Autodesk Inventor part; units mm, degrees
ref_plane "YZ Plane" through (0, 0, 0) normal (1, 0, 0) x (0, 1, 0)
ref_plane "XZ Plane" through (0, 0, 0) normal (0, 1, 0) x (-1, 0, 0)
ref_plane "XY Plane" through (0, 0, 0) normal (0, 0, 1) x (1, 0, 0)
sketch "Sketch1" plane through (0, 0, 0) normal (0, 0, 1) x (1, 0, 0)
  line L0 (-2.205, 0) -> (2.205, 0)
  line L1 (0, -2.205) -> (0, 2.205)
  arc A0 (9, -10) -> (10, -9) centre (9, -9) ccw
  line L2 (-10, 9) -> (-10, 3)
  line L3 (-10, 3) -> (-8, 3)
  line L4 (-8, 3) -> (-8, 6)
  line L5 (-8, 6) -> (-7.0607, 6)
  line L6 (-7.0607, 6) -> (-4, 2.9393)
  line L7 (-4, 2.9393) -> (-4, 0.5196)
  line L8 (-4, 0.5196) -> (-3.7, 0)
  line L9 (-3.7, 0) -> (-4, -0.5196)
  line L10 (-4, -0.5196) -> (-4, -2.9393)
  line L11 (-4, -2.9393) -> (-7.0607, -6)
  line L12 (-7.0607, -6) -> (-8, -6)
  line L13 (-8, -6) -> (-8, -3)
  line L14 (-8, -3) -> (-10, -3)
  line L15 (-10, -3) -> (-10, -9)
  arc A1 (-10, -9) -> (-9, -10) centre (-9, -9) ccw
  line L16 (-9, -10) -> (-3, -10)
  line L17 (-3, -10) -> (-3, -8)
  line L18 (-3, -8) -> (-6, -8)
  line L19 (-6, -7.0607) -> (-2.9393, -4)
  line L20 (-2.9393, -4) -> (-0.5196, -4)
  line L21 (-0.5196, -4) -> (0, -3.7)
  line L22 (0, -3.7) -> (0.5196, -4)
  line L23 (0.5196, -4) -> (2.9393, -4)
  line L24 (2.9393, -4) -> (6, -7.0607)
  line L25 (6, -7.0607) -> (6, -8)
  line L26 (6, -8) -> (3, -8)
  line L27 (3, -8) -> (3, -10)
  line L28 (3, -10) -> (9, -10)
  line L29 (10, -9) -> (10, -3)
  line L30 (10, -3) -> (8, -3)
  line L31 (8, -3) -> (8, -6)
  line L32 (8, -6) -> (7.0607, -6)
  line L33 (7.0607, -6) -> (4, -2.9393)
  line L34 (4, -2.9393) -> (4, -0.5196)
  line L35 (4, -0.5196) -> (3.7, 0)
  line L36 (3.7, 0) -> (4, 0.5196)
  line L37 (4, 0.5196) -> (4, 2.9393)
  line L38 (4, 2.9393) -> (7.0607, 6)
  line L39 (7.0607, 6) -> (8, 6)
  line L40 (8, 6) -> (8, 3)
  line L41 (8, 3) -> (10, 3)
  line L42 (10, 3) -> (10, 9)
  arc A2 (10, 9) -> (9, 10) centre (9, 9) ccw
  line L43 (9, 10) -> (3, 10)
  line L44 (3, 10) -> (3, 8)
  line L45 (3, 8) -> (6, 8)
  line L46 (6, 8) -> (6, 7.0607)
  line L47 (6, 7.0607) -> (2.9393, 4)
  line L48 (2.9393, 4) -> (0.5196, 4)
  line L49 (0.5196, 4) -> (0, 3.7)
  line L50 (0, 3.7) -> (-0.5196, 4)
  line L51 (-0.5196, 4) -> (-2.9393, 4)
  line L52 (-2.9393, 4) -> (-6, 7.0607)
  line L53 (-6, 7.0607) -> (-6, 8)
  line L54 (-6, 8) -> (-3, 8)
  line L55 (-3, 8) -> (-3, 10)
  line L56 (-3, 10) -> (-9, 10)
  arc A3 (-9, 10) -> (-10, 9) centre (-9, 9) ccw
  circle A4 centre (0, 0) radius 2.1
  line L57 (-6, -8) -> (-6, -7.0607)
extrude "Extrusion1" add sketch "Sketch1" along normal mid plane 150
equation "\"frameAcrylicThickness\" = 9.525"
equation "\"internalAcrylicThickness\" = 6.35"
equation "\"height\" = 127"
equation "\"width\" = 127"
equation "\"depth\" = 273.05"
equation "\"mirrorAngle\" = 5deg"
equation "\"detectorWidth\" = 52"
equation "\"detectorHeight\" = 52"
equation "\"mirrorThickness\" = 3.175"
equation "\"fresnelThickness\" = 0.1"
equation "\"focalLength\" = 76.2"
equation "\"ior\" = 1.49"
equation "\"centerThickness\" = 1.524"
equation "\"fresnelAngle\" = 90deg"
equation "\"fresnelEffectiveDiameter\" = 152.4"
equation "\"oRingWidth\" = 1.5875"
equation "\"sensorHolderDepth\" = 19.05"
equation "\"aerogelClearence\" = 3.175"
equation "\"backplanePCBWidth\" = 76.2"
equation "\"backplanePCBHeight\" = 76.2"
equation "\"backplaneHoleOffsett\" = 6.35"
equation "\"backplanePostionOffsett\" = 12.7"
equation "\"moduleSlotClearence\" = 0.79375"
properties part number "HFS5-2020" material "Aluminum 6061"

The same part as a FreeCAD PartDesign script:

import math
import FreeCAD as App
import Part
import Sketcher
from FreeCAD import Vector
Q = App.Units.Quantity

doc = App.newDocument("Part")
body = doc.addObject("PartDesign::Body", "Body")

sketch1 = body.newObject("Sketcher::SketchObject", "Sketch")
sketch1.AttachmentSupport = (doc.getObject("XY_Plane"), [""])
sketch1.MapMode = "FlatFace"
sketch1.addGeometry(Part.LineSegment(Vector(3, -10, 0), Vector(9, -10, 0)), False)
sketch1.addGeometry(Part.ArcOfCircle(Part.Circle(Vector(9, -9, 0), Vector(0, 0, 1), 1), math.radians(-90), math.radians(0)), False)
sketch1.addGeometry(Part.LineSegment(Vector(10, -9, 0), Vector(10, -3, 0)), False)
sketch1.addGeometry(Part.LineSegment(Vector(10, -3, 0), Vector(8, -3, 0)), False)
sketch1.addGeometry(Part.LineSegment(Vector(8, -3, 0), Vector(8, -6, 0)), False)
sketch1.addGeometry(Part.LineSegment(Vector(8, -6, 0), Vector(7.1, -6, 0)), False)
sketch1.addGeometry(Part.LineSegment(Vector(7.1, -6, 0), Vector(4, -2.9, 0)), False)
sketch1.addGeometry(Part.LineSegment(Vector(4, -2.9, 0), Vector(4, -0.5, 0)), False)
sketch1.addGeometry(Part.LineSegment(Vector(4, -0.5, 0), Vector(3.7, 0, 0)), False)
sketch1.addGeometry(Part.LineSegment(Vector(3.7, 0, 0), Vector(4, 0.5, 0)), False)
sketch1.addGeometry(Part.LineSegment(Vector(4, 0.5, 0), Vector(4, 2.9, 0)), False)
sketch1.addGeometry(Part.LineSegment(Vector(4, 2.9, 0), Vector(7.1, 6, 0)), False)
sketch1.addGeometry(Part.LineSegment(Vector(7.1, 6, 0), Vector(8, 6, 0)), False)
sketch1.addGeometry(Part.LineSegment(Vector(8, 6, 0), Vector(8, 3, 0)), False)
sketch1.addGeometry(Part.LineSegment(Vector(8, 3, 0), Vector(10, 3, 0)), False)
sketch1.addGeometry(Part.LineSegment(Vector(10, 3, 0), Vector(10, 9, 0)), False)
sketch1.addGeometry(Part.ArcOfCircle(Part.Circle(Vector(9, 9, 0), Vector(0, 0, 1), 1), math.radians(0), math.radians(90)), False)
sketch1.addGeometry(Part.LineSegment(Vector(9, 10, 0), Vector(3, 10, 0)), False)
sketch1.addGeometry(Part.LineSegment(Vector(3, 10, 0), Vector(3, 8, 0)), False)
sketch1.addGeometry(Part.LineSegment(Vector(3, 8, 0), Vector(6, 8, 0)), False)
sketch1.addGeometry(Part.LineSegment(Vector(6, 8, 0), Vector(6, 7.1, 0)), False)
sketch1.addGeometry(Part.LineSegment(Vector(6, 7.1, 0), Vector(2.9, 4, 0)), False)
sketch1.addGeometry(Part.LineSegment(Vector(2.9, 4, 0), Vector(0.5, 4, 0)), False)
sketch1.addGeometry(Part.LineSegment(Vector(0.5, 4, 0), Vector(0, 3.7, 0)), False)
sketch1.addGeometry(Part.LineSegment(Vector(0, 3.7, 0), Vector(-0.5, 4, 0)), False)
sketch1.addGeometry(Part.LineSegment(Vector(-0.5, 4, 0), Vector(-2.9, 4, 0)), False)
sketch1.addGeometry(Part.LineSegment(Vector(-2.9, 4, 0), Vector(-6, 7.1, 0)), False)
sketch1.addGeometry(Part.LineSegment(Vector(-6, 7.1, 0), Vector(-6, 8, 0)), False)
sketch1.addGeometry(Part.LineSegment(Vector(-6, 8, 0), Vector(-3, 8, 0)), False)
sketch1.addGeometry(Part.LineSegment(Vector(-3, 8, 0), Vector(-3, 10, 0)), False)
sketch1.addGeometry(Part.LineSegment(Vector(-3, 10, 0), Vector(-9, 10, 0)), False)
sketch1.addGeometry(Part.ArcOfCircle(Part.Circle(Vector(-9, 9, 0), Vector(0, 0, 1), 1), math.radians(90), math.radians(180)), False)
sketch1.addGeometry(Part.LineSegment(Vector(-10, 9, 0), Vector(-10, 3, 0)), False)
sketch1.addGeometry(Part.LineSegment(Vector(-10, 3, 0), Vector(-8, 3, 0)), False)
sketch1.addGeometry(Part.LineSegment(Vector(-8, 3, 0), Vector(-8, 6, 0)), False)
sketch1.addGeometry(Part.LineSegment(Vector(-8, 6, 0), Vector(-7.1, 6, 0)), False)
sketch1.addGeometry(Part.LineSegment(Vector(-7.1, 6, 0), Vector(-4, 2.9, 0)), False)
sketch1.addGeometry(Part.LineSegment(Vector(-4, 2.9, 0), Vector(-4, 0.5, 0)), False)
sketch1.addGeometry(Part.LineSegment(Vector(-4, 0.5, 0), Vector(-3.7, 0, 0)), False)
sketch1.addGeometry(Part.LineSegment(Vector(-3.7, 0, 0), Vector(-4, -0.5, 0)), False)
sketch1.addGeometry(Part.LineSegment(Vector(-4, -0.5, 0), Vector(-4, -2.9, 0)), False)
sketch1.addGeometry(Part.LineSegment(Vector(-4, -2.9, 0), Vector(-7.1, -6, 0)), False)
sketch1.addGeometry(Part.LineSegment(Vector(-7.1, -6, 0), Vector(-8, -6, 0)), False)
sketch1.addGeometry(Part.LineSegment(Vector(-8, -6, 0), Vector(-8, -3, 0)), False)
sketch1.addGeometry(Part.LineSegment(Vector(-8, -3, 0), Vector(-10, -3, 0)), False)
sketch1.addGeometry(Part.LineSegment(Vector(-10, -3, 0), Vector(-10, -9, 0)), False)
sketch1.addGeometry(Part.ArcOfCircle(Part.Circle(Vector(-9, -9, 0), Vector(0, 0, 1), 1), math.radians(180), math.radians(270)), False)
sketch1.addGeometry(Part.LineSegment(Vector(-9, -10, 0), Vector(-3, -10, 0)), False)
sketch1.addGeometry(Part.LineSegment(Vector(-3, -10, 0), Vector(-3, -8, 0)), False)
sketch1.addGeometry(Part.LineSegment(Vector(-3, -8, 0), Vector(-6, -8, 0)), False)
sketch1.addGeometry(Part.LineSegment(Vector(-6, -8, 0), Vector(-6, -7.1, 0)), False)
sketch1.addGeometry(Part.LineSegment(Vector(-6, -7.1, 0), Vector(-2.9, -4, 0)), False)
sketch1.addGeometry(Part.LineSegment(Vector(-2.9, -4, 0), Vector(-0.5, -4, 0)), False)
sketch1.addGeometry(Part.LineSegment(Vector(-0.5, -4, 0), Vector(0, -3.7, 0)), False)
sketch1.addGeometry(Part.LineSegment(Vector(0, -3.7, 0), Vector(0.5, -4, 0)), False)
sketch1.addGeometry(Part.LineSegment(Vector(0.5, -4, 0), Vector(2.9, -4, 0)), False)
sketch1.addGeometry(Part.LineSegment(Vector(2.9, -4, 0), Vector(6, -7.1, 0)), False)
sketch1.addGeometry(Part.LineSegment(Vector(6, -7.1, 0), Vector(6, -8, 0)), False)
sketch1.addGeometry(Part.LineSegment(Vector(6, -8, 0), Vector(3, -8, 0)), False)
sketch1.addGeometry(Part.LineSegment(Vector(3, -8, 0), Vector(3, -10, 0)), False)
sketch1.addGeometry(Part.Circle(Vector(0, 0, 0), Vector(0, 0, 1), 2.1), False)
sketch1.addConstraint(Sketcher.Constraint("Tangent", 0, 2, 1, 1))
sketch1.addConstraint(Sketcher.Constraint("Tangent", 1, 2, 2, 1))
sketch1.addConstraint(Sketcher.Constraint("Coincident", 2, 2, 3, 1))
sketch1.addConstraint(Sketcher.Constraint("Coincident", 3, 2, 4, 1))
sketch1.addConstraint(Sketcher.Constraint("Coincident", 4, 2, 5, 1))
sketch1.addConstraint(Sketcher.Constraint("Coincident", 5, 2, 6, 1))
sketch1.addConstraint(Sketcher.Constraint("Coincident", 6, 2, 7, 1))
sketch1.addConstraint(Sketcher.Constraint("Coincident", 7, 2, 8, 1))
sketch1.addConstraint(Sketcher.Constraint("Coincident", 8, 2, 9, 1))
sketch1.addConstraint(Sketcher.Constraint("Coincident", 9, 2, 10, 1))
sketch1.addConstraint(Sketcher.Constraint("Coincident", 10, 2, 11, 1))
sketch1.addConstraint(Sketcher.Constraint("Coincident", 11, 2, 12, 1))
sketch1.addConstraint(Sketcher.Constraint("Coincident", 12, 2, 13, 1))
sketch1.addConstraint(Sketcher.Constraint("Coincident", 13, 2, 14, 1))
sketch1.addConstraint(Sketcher.Constraint("Coincident", 14, 2, 15, 1))
sketch1.addConstraint(Sketcher.Constraint("Tangent", 15, 2, 16, 1))
sketch1.addConstraint(Sketcher.Constraint("Tangent", 16, 2, 17, 1))
sketch1.addConstraint(Sketcher.Constraint("Coincident", 17, 2, 18, 1))
sketch1.addConstraint(Sketcher.Constraint("Coincident", 18, 2, 19, 1))
sketch1.addConstraint(Sketcher.Constraint("Coincident", 19, 2, 20, 1))
sketch1.addConstraint(Sketcher.Constraint("Coincident", 20, 2, 21, 1))
sketch1.addConstraint(Sketcher.Constraint("Coincident", 21, 2, 22, 1))
sketch1.addConstraint(Sketcher.Constraint("Coincident", 22, 2, 23, 1))
sketch1.addConstraint(Sketcher.Constraint("Coincident", 23, 2, 24, 1))
sketch1.addConstraint(Sketcher.Constraint("Coincident", 24, 2, 25, 1))
sketch1.addConstraint(Sketcher.Constraint("Coincident", 25, 2, 26, 1))
sketch1.addConstraint(Sketcher.Constraint("Coincident", 26, 2, 27, 1))
sketch1.addConstraint(Sketcher.Constraint("Coincident", 27, 2, 28, 1))
sketch1.addConstraint(Sketcher.Constraint("Coincident", 28, 2, 29, 1))
sketch1.addConstraint(Sketcher.Constraint("Coincident", 29, 2, 30, 1))
sketch1.addConstraint(Sketcher.Constraint("Tangent", 30, 2, 31, 1))
sketch1.addConstraint(Sketcher.Constraint("Tangent", 31, 2, 32, 1))
sketch1.addConstraint(Sketcher.Constraint("Coincident", 32, 2, 33, 1))
sketch1.addConstraint(Sketcher.Constraint("Coincident", 33, 2, 34, 1))
sketch1.addConstraint(Sketcher.Constraint("Coincident", 34, 2, 35, 1))
sketch1.addConstraint(Sketcher.Constraint("Coincident", 35, 2, 36, 1))
sketch1.addConstraint(Sketcher.Constraint("Coincident", 36, 2, 37, 1))
sketch1.addConstraint(Sketcher.Constraint("Coincident", 37, 2, 38, 1))
sketch1.addConstraint(Sketcher.Constraint("Coincident", 38, 2, 39, 1))
sketch1.addConstraint(Sketcher.Constraint("Coincident", 39, 2, 40, 1))
sketch1.addConstraint(Sketcher.Constraint("Coincident", 40, 2, 41, 1))
sketch1.addConstraint(Sketcher.Constraint("Coincident", 41, 2, 42, 1))
sketch1.addConstraint(Sketcher.Constraint("Coincident", 42, 2, 43, 1))
sketch1.addConstraint(Sketcher.Constraint("Coincident", 43, 2, 44, 1))
sketch1.addConstraint(Sketcher.Constraint("Coincident", 44, 2, 45, 1))
sketch1.addConstraint(Sketcher.Constraint("Tangent", 45, 2, 46, 1))
sketch1.addConstraint(Sketcher.Constraint("Tangent", 46, 2, 47, 1))
sketch1.addConstraint(Sketcher.Constraint("Coincident", 47, 2, 48, 1))
sketch1.addConstraint(Sketcher.Constraint("Coincident", 48, 2, 49, 1))
sketch1.addConstraint(Sketcher.Constraint("Coincident", 49, 2, 50, 1))
sketch1.addConstraint(Sketcher.Constraint("Coincident", 50, 2, 51, 1))
sketch1.addConstraint(Sketcher.Constraint("Coincident", 51, 2, 52, 1))
sketch1.addConstraint(Sketcher.Constraint("Coincident", 52, 2, 53, 1))
sketch1.addConstraint(Sketcher.Constraint("Coincident", 53, 2, 54, 1))
sketch1.addConstraint(Sketcher.Constraint("Coincident", 54, 2, 55, 1))
sketch1.addConstraint(Sketcher.Constraint("Coincident", 55, 2, 56, 1))
sketch1.addConstraint(Sketcher.Constraint("Coincident", 56, 2, 57, 1))
sketch1.addConstraint(Sketcher.Constraint("Coincident", 57, 2, 58, 1))
sketch1.addConstraint(Sketcher.Constraint("Coincident", 58, 2, 59, 1))
sketch1.addConstraint(Sketcher.Constraint("Coincident", 59, 2, 0, 1))
sketch1.addConstraint(Sketcher.Constraint("Horizontal", 0))
sketch1.addConstraint(Sketcher.Constraint("Vertical", 2))
sketch1.addConstraint(Sketcher.Constraint("Horizontal", 3))
sketch1.addConstraint(Sketcher.Constraint("Vertical", 4))
sketch1.addConstraint(Sketcher.Constraint("Horizontal", 5))
sketch1.addConstraint(Sketcher.Constraint("Vertical", 7))
sketch1.addConstraint(Sketcher.Constraint("Vertical", 10))
sketch1.addConstraint(Sketcher.Constraint("Horizontal", 12))
sketch1.addConstraint(Sketcher.Constraint("Vertical", 13))
sketch1.addConstraint(Sketcher.Constraint("Horizontal", 14))
sketch1.addConstraint(Sketcher.Constraint("Vertical", 15))
sketch1.addConstraint(Sketcher.Constraint("Horizontal", 17))
sketch1.addConstraint(Sketcher.Constraint("Vertical", 18))
sketch1.addConstraint(Sketcher.Constraint("Horizontal", 19))
sketch1.addConstraint(Sketcher.Constraint("Vertical", 20))
sketch1.addConstraint(Sketcher.Constraint("Horizontal", 22))
sketch1.addConstraint(Sketcher.Constraint("Horizontal", 25))
sketch1.addConstraint(Sketcher.Constraint("Vertical", 27))
sketch1.addConstraint(Sketcher.Constraint("Horizontal", 28))
sketch1.addConstraint(Sketcher.Constraint("Vertical", 29))
sketch1.addConstraint(Sketcher.Constraint("Horizontal", 30))
sketch1.addConstraint(Sketcher.Constraint("Vertical", 32))
sketch1.addConstraint(Sketcher.Constraint("Horizontal", 33))
sketch1.addConstraint(Sketcher.Constraint("Vertical", 34))
sketch1.addConstraint(Sketcher.Constraint("Horizontal", 35))
sketch1.addConstraint(Sketcher.Constraint("Vertical", 37))
sketch1.addConstraint(Sketcher.Constraint("Vertical", 40))
sketch1.addConstraint(Sketcher.Constraint("Horizontal", 42))
sketch1.addConstraint(Sketcher.Constraint("Vertical", 43))
sketch1.addConstraint(Sketcher.Constraint("Horizontal", 44))
sketch1.addConstraint(Sketcher.Constraint("Vertical", 45))
sketch1.addConstraint(Sketcher.Constraint("Horizontal", 47))
sketch1.addConstraint(Sketcher.Constraint("Vertical", 48))
sketch1.addConstraint(Sketcher.Constraint("Horizontal", 49))
sketch1.addConstraint(Sketcher.Constraint("Vertical", 50))
sketch1.addConstraint(Sketcher.Constraint("Horizontal", 52))
sketch1.addConstraint(Sketcher.Constraint("Horizontal", 55))
sketch1.addConstraint(Sketcher.Constraint("Vertical", 57))
sketch1.addConstraint(Sketcher.Constraint("Horizontal", 58))
sketch1.addConstraint(Sketcher.Constraint("Vertical", 59))
sketch1.addConstraint(Sketcher.Constraint("Coincident", 60, 3, -1, 1))
sketch1.addConstraint(Sketcher.Constraint("Equal", 1, 16))
sketch1.addConstraint(Sketcher.Constraint("Equal", 16, 31))
sketch1.addConstraint(Sketcher.Constraint("Equal", 31, 46))
sketch1.addConstraint(Sketcher.Constraint("Symmetric", 1, 3, 31, 3, -1, 1))
sketch1.addConstraint(Sketcher.Constraint("Symmetric", 16, 3, 46, 3, -1, 1))
sketch1.addConstraint(Sketcher.Constraint("Symmetric", 3, 2, 33, 2, -1, 1))
sketch1.addConstraint(Sketcher.Constraint("Symmetric", 5, 2, 35, 2, -1, 1))
sketch1.addConstraint(Sketcher.Constraint("Symmetric", 6, 2, 36, 2, -1, 1))
sketch1.addConstraint(Sketcher.Constraint("Symmetric", 8, 2, 38, 2, -1, 1))
sketch1.addConstraint(Sketcher.Constraint("Symmetric", 9, 2, 39, 2, -1, 1))
sketch1.addConstraint(Sketcher.Constraint("Symmetric", 11, 2, 41, 2, -1, 1))
sketch1.addConstraint(Sketcher.Constraint("Symmetric", 13, 2, 43, 2, -1, 1))
sketch1.addConstraint(Sketcher.Constraint("Symmetric", 18, 2, 48, 2, -1, 1))
sketch1.addConstraint(Sketcher.Constraint("Symmetric", 20, 2, 50, 2, -1, 1))
sketch1.addConstraint(Sketcher.Constraint("Symmetric", 21, 2, 51, 2, -1, 1))
sketch1.addConstraint(Sketcher.Constraint("Symmetric", 23, 2, 53, 2, -1, 1))
sketch1.addConstraint(Sketcher.Constraint("Symmetric", 24, 2, 54, 2, -1, 1))
sketch1.addConstraint(Sketcher.Constraint("Symmetric", 26, 2, 56, 2, -1, 1))
sketch1.addConstraint(Sketcher.Constraint("Symmetric", 28, 2, 58, 2, -1, 1))
sketch1.addConstraint(Sketcher.Constraint("Symmetric", 16, 3, 31, 3, -2))
sketch1.addConstraint(Sketcher.Constraint("Symmetric", 22, 2, 24, 2, -2))
sketch1.addConstraint(Sketcher.Constraint("Symmetric", 20, 2, 26, 2, -2))
sketch1.addConstraint(Sketcher.Constraint("Symmetric", 18, 2, 28, 2, -2))
sketch1.addConstraint(Sketcher.Constraint("Symmetric", 13, 2, 33, 2, -2))
sketch1.addConstraint(Sketcher.Constraint("Symmetric", 11, 2, 35, 2, -2))
sketch1.addConstraint(Sketcher.Constraint("Symmetric", 10, 2, 36, 2, -2))
sketch1.addConstraint(Sketcher.Constraint("PointOnObject", 8, 2, -1))
sketch1.addConstraint(Sketcher.Constraint("PointOnObject", 23, 2, -2))
sketch1.addConstraint(Sketcher.Constraint("Perpendicular", 6, 11))
sketch1.addConstraint(Sketcher.Constraint("Parallel", 11, 21))
sketch1.addConstraint(Sketcher.Constraint("Perpendicular", 8, 23))
sketch1.addConstraint(Sketcher.Constraint("Perpendicular", 9, 24))
sketch1.addConstraint(Sketcher.Constraint("Perpendicular", 21, 26))
sketch1.addConstraint(Sketcher.Constraint("Perpendicular", 23, 38))
sketch1.addConstraint(Sketcher.Constraint("Perpendicular", 36, 41))
sketch1.addConstraint(Sketcher.Constraint("Perpendicular", 38, 53))
sketch1.addConstraint(Sketcher.Constraint("Perpendicular", 51, 56))
sketch1.addConstraint(Sketcher.Constraint("Equal", 47, 2))
sketch1.addConstraint(Sketcher.Constraint("Equal", 58, 4))
sketch1.addConstraint(Sketcher.Constraint("Equal", 55, 7))
sketch1.addConstraint(Sketcher.Constraint("Equal", 44, 18))
sketch1.addConstraint(Sketcher.Constraint("Equal", 42, 20))
sketch1.addConstraint(Sketcher.Constraint("Equal", 11, 21))
sketch1.addConstraint(Sketcher.Constraint("Equal", 9, 23))
sketch1.addConstraint(Sketcher.Constraint("Radius", 1, 1.0))
sketch1.addConstraint(Sketcher.Constraint("Diameter", 60, 4.2))
sketch1.addConstraint(Sketcher.Constraint("DistanceX", 0, 1, 0, 2, 6.0))
sketch1.addConstraint(Sketcher.Constraint("DistanceX", 3, 2, 3, 1, 2.0))
sketch1.addConstraint(Sketcher.Constraint("DistanceX", 19, 1, 19, 2, 3.0))
sketch1.addConstraint(Sketcher.Constraint("Angle", 8, Q("120.0007 deg")))
sketch1.addConstraint(Sketcher.Constraint("DistanceX", -1, 1, 1, 3, 9.0))
sketch1.addConstraint(Sketcher.Constraint("DistanceX", -1, 1, 6, 2, 4.0))
sketch1.addConstraint(Sketcher.Constraint("Distance", 8, 0.6))
sketch1.addConstraint(Sketcher.Constraint("DistanceX", 5, 2, 5, 1, 0.9393))
pad1 = body.newObject("PartDesign::Pad", "Pad")
pad1.Profile = sketch1
pad1.Length = 150
pad1.Midplane = True

doc.recompute()
